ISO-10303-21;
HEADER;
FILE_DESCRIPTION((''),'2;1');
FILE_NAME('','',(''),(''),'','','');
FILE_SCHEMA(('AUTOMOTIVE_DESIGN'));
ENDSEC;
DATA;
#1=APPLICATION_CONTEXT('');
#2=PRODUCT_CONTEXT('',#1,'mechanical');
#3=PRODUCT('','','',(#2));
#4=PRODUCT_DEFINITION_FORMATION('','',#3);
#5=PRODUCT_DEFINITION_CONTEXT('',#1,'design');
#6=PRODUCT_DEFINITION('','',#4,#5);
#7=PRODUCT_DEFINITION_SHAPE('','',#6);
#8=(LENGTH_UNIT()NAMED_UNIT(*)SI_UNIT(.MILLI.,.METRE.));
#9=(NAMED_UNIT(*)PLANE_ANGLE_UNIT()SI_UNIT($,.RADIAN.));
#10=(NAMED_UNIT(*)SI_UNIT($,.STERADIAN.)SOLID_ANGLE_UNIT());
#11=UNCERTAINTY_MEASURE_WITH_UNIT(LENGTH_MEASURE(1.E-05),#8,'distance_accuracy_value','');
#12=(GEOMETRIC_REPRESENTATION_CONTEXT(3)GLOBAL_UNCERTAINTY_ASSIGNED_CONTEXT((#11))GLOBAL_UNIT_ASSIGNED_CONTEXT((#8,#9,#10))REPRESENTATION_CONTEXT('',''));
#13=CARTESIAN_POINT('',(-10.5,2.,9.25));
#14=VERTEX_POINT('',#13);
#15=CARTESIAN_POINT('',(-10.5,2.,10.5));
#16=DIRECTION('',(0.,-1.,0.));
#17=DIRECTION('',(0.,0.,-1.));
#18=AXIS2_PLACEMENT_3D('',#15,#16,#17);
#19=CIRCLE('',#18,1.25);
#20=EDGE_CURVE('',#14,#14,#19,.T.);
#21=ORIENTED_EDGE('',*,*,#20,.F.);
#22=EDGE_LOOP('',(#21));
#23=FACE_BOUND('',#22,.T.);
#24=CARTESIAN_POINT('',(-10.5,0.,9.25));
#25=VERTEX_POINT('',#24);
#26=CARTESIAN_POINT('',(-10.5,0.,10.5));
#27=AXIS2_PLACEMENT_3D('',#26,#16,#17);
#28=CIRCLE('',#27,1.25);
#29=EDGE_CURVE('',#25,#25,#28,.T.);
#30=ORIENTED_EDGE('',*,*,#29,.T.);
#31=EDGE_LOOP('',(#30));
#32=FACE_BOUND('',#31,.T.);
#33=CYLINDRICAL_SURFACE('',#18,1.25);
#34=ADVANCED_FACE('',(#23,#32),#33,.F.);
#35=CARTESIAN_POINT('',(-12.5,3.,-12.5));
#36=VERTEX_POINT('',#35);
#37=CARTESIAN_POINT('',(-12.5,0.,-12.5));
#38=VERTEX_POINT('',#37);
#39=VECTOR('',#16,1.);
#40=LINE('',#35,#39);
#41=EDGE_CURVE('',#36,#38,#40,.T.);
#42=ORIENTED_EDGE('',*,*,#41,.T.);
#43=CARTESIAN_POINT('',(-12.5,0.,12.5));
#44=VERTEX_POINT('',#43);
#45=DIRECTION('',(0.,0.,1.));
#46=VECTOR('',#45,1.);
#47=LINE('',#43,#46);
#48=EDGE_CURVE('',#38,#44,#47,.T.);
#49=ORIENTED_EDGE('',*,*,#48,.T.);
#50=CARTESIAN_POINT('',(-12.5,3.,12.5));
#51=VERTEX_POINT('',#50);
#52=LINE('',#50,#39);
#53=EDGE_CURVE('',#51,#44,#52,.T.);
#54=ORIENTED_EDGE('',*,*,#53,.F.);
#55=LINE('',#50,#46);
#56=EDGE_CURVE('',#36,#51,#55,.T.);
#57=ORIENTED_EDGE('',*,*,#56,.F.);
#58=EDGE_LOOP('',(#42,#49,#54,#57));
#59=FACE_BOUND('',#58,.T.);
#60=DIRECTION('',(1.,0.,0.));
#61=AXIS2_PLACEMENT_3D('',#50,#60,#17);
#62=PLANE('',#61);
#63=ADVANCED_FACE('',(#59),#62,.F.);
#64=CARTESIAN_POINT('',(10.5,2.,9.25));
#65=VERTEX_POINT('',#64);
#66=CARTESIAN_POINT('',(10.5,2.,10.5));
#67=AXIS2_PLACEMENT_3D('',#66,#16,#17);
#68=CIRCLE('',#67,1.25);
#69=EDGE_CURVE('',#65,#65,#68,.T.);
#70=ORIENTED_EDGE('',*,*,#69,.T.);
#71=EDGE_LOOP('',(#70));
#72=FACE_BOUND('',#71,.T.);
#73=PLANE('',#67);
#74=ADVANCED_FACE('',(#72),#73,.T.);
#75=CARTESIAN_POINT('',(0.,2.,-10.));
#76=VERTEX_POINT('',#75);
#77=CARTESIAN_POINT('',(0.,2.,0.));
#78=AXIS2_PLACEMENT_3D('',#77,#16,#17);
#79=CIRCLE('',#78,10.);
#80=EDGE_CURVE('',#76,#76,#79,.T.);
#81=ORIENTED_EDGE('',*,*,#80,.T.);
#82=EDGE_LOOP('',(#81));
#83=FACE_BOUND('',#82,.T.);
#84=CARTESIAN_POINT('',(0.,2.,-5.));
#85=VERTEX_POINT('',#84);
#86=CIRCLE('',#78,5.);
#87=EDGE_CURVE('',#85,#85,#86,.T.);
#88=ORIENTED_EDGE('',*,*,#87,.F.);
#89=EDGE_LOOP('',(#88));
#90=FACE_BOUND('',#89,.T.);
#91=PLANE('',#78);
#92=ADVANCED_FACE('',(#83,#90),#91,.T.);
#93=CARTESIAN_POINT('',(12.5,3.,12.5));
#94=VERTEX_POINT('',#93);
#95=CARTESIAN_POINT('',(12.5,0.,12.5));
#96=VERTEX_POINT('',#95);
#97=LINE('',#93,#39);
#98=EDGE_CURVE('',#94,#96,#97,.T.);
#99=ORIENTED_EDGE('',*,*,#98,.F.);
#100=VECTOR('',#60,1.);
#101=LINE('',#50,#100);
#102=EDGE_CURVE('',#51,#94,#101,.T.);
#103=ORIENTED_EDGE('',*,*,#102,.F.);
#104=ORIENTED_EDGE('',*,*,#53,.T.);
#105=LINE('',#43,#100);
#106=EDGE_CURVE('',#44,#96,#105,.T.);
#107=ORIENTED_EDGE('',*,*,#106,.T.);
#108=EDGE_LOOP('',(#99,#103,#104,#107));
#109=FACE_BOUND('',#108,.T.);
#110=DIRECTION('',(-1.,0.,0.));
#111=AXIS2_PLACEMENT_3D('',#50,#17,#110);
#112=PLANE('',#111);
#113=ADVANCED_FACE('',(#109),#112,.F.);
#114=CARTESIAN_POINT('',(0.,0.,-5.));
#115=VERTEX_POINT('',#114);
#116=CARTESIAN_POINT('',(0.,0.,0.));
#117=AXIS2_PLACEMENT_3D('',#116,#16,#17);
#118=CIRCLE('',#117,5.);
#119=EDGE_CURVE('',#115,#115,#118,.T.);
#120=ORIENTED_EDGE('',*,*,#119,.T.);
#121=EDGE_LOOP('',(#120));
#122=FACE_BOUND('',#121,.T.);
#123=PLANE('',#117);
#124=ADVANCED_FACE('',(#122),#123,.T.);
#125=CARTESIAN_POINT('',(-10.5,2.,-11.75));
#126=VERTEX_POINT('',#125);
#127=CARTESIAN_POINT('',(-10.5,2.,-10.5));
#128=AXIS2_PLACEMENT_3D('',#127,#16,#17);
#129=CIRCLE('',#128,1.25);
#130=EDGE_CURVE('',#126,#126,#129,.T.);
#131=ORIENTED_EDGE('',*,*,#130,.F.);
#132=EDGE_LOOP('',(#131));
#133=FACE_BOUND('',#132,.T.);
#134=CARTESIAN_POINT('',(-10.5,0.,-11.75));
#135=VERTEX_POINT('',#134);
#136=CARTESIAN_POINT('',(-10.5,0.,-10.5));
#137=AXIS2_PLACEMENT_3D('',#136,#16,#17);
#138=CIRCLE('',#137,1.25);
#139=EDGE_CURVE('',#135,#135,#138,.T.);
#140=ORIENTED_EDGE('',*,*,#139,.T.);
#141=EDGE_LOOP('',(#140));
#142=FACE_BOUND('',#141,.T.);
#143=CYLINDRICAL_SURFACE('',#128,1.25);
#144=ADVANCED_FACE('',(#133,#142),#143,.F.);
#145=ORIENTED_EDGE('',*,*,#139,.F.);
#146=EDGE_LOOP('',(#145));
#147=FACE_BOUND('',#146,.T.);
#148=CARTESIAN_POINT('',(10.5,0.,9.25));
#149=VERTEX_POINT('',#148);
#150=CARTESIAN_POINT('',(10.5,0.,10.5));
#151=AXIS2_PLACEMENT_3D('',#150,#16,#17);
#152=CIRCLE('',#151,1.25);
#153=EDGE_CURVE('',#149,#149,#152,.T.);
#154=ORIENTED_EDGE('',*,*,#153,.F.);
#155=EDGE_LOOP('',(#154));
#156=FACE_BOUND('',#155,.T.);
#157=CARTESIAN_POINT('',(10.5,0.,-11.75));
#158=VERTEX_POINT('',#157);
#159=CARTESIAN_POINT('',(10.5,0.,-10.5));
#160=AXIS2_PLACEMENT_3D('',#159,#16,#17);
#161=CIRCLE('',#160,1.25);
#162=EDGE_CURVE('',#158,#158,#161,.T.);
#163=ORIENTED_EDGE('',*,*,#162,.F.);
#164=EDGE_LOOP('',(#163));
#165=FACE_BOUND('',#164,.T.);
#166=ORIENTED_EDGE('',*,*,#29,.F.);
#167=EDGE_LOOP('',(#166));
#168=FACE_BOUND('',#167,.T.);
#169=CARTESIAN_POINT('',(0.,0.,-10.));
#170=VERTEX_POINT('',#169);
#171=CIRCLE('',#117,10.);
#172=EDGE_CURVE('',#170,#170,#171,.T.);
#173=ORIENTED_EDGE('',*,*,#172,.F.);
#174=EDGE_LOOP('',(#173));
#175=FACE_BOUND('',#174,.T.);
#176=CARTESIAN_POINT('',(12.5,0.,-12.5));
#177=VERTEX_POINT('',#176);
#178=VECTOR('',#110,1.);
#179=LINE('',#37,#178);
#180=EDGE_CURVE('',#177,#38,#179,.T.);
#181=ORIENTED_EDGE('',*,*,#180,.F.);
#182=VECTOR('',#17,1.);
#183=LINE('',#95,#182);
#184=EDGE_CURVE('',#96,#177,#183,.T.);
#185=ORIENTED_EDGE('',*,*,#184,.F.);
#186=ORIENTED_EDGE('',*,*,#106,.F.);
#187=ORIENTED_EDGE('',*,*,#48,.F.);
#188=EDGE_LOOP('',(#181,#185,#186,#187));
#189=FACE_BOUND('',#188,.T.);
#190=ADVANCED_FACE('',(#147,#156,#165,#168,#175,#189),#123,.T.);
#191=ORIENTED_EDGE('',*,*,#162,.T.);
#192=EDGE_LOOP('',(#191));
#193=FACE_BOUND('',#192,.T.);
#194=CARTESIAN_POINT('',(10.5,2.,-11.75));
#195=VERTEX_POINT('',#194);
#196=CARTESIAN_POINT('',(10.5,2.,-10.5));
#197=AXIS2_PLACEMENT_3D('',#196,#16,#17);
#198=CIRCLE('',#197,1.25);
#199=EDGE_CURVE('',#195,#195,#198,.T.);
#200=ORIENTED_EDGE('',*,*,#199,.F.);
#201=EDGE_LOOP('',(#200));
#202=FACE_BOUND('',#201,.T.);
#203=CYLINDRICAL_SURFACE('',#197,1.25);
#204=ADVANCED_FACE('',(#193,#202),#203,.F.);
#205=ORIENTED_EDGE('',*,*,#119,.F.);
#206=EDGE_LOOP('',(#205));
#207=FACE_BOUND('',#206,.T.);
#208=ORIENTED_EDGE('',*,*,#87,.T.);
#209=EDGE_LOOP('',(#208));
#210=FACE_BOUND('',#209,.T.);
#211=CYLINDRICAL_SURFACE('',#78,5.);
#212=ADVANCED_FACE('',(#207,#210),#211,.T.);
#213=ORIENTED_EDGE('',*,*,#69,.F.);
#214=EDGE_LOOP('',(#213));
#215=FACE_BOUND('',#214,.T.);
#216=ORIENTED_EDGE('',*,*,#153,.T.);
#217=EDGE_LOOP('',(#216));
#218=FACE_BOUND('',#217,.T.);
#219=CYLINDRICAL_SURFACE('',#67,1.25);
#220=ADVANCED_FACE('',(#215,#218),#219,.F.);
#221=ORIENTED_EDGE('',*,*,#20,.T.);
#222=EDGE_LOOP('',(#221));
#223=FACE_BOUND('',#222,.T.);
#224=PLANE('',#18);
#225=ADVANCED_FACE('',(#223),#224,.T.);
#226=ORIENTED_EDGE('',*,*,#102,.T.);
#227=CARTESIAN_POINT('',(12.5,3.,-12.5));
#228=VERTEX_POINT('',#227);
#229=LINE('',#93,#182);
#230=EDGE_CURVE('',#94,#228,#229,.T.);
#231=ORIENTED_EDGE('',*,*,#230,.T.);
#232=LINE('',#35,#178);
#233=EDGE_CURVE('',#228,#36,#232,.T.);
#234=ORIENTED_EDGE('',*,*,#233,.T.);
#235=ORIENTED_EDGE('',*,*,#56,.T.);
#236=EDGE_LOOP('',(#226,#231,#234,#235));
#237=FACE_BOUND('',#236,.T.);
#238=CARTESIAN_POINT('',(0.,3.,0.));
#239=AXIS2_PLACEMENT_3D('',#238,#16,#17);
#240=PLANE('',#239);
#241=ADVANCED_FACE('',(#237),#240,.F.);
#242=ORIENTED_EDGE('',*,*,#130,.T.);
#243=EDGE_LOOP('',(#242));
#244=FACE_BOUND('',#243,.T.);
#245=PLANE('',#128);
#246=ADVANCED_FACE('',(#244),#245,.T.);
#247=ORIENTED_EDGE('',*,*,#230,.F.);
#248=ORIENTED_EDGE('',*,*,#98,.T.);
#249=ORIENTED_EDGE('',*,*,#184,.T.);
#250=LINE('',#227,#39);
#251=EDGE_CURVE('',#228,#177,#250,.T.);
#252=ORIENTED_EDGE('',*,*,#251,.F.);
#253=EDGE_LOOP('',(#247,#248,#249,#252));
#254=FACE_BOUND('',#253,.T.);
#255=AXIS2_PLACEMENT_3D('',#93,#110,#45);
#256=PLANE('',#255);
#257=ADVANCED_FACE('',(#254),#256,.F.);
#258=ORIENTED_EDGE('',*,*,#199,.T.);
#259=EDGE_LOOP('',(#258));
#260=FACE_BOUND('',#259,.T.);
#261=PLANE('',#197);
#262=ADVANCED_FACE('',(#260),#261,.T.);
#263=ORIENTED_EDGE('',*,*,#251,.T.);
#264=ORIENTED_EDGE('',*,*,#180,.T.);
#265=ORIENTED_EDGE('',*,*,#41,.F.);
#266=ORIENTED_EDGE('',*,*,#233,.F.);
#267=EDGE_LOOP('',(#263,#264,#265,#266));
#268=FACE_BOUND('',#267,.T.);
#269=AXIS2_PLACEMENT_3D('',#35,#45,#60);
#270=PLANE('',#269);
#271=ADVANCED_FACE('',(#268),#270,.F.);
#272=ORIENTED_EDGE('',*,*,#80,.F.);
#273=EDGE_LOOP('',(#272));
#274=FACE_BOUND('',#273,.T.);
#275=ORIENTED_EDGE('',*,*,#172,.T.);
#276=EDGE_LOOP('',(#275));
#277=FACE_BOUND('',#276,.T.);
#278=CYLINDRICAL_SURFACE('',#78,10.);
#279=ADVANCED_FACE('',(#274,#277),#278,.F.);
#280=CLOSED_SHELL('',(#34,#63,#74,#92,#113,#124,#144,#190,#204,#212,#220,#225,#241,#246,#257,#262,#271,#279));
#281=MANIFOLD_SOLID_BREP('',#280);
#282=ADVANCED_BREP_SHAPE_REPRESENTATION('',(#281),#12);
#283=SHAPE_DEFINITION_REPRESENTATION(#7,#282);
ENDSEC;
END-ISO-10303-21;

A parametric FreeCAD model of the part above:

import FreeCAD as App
import Part
import Sketcher

V = App.Vector
Q = App.Units.Quantity

doc = App.newDocument("Part")
params = doc.addObject("Spreadsheet::Sheet", "Params")
for row, (alias, value) in enumerate([
    ("sketch1_width", "25 mm"),
    ("pad1_length", "3 mm"),
    ("sketch2_diameter", "20 mm"),
    ("sketch2_diameter2", "10 mm"),
    ("pocket1_length", "2 mm"),
    ("sketch3_diameter", "2.5 mm"),
    ("pocket2_length", "2 mm"),
], start=1):
    params.set(f"A{row}", alias)
    params.set(f"B{row}", "=" + value)
    params.setAlias(f"B{row}", alias)

body = doc.addObject("PartDesign::Body", "Body")

# Sketch on XZ plane
sketch1 = body.newObject("Sketcher::SketchObject", "Sketch")
sketch1.AttachmentSupport = (doc.getObject("XZ_Plane"), [""])
sketch1.MapMode = "FlatFace"
sketch1.addGeometry(Part.LineSegment(V(-12.5, -12.5, 0), V(-12.5, 12.5, 0)), False)
sketch1.addGeometry(Part.LineSegment(V(-12.5, 12.5, 0), V(12.5, 12.5, 0)), False)
sketch1.addGeometry(Part.LineSegment(V(12.5, 12.5, 0), V(12.5, -12.5, 0)), False)
sketch1.addGeometry(Part.LineSegment(V(12.5, -12.5, 0), V(-12.5, -12.5, 0)), False)
sketch1.addConstraint(Sketcher.Constraint("Coincident", 0, 2, 1, 1))
sketch1.addConstraint(Sketcher.Constraint("Coincident", 1, 2, 2, 1))
sketch1.addConstraint(Sketcher.Constraint("Coincident", 2, 2, 3, 1))
sketch1.addConstraint(Sketcher.Constraint("Coincident", 3, 2, 0, 1))
sketch1.addConstraint(Sketcher.Constraint("Vertical", 0))
sketch1.addConstraint(Sketcher.Constraint("Horizontal", 1))
sketch1.addConstraint(Sketcher.Constraint("Vertical", 2))
sketch1.addConstraint(Sketcher.Constraint("Horizontal", 3))
sketch1.addConstraint(Sketcher.Constraint("Symmetric", 0, 2, 2, 2, -1, 1))
sketch1.addConstraint(Sketcher.Constraint("Equal", 3, 0))
sketch1.addConstraint(Sketcher.Constraint("DistanceX", 1, 1, 1, 2, Q("25 mm")))
sketch1.setExpression("Constraints[10]", "Params.sketch1_width")
pad1 = body.newObject("PartDesign::Pad", "Pad")
pad1.Profile = sketch1
pad1.setExpression("Length", "Params.pad1_length")
pad1.Reversed = True

# Sketch on XZ plane
sketch2 = body.newObject("Sketcher::SketchObject", "Sketch001")
sketch2.AttachmentSupport = (doc.getObject("XZ_Plane"), [""])
sketch2.MapMode = "FlatFace"
sketch2.addGeometry(Part.Circle(V(0, 0, 0), V(0, 0, 1), 10), False)
sketch2.addGeometry(Part.Circle(V(0, 0, 0), V(0, 0, 1), 5), False)
sketch2.addConstraint(Sketcher.Constraint("Coincident", 0, 3, -1, 1))
sketch2.addConstraint(Sketcher.Constraint("Coincident", 1, 3, -1, 1))
sketch2.addConstraint(Sketcher.Constraint("Diameter", 0, Q("20 mm")))
sketch2.addConstraint(Sketcher.Constraint("Diameter", 1, Q("10 mm")))
sketch2.setExpression("Constraints[2]", "Params.sketch2_diameter")
sketch2.setExpression("Constraints[3]", "Params.sketch2_diameter2")
pocket1 = body.newObject("PartDesign::Pocket", "Pocket")
pocket1.Profile = sketch2
pocket1.setExpression("Length", "Params.pocket1_length")

# Sketch on XZ plane
sketch3 = body.newObject("Sketcher::SketchObject", "Sketch002")
sketch3.AttachmentSupport = (doc.getObject("XZ_Plane"), [""])
sketch3.MapMode = "FlatFace"
sketch3.addGeometry(Part.Circle(V(-10.5, 10.5, 0), V(0, 0, 1), 1.25), False)
sketch3.addGeometry(Part.Circle(V(10.5, 10.5, 0), V(0, 0, 1), 1.25), False)
sketch3.addGeometry(Part.Circle(V(10.5, -10.5, 0), V(0, 0, 1), 1.25), False)
sketch3.addGeometry(Part.Circle(V(-10.5, -10.5, 0), V(0, 0, 1), 1.25), False)
sketch3.addConstraint(Sketcher.Constraint("Equal", 0, 1))
sketch3.addConstraint(Sketcher.Constraint("Equal", 1, 2))
sketch3.addConstraint(Sketcher.Constraint("Equal", 2, 3))
sketch3.addConstraint(Sketcher.Constraint("Symmetric", 0, 3, 2, 3, -1, 1))
sketch3.addConstraint(Sketcher.Constraint("Symmetric", 1, 3, 3, 3, -1, 1))
sketch3.addConstraint(Sketcher.Constraint("Symmetric", 0, 3, 1, 3, -2))
sketch3.addConstraint(Sketcher.Constraint("Diameter", 0, Q("2.5 mm")))
sketch3.addConstraint(Sketcher.Constraint("DistanceX", 0, 3, 1, 3, Q("21 mm")))
sketch3.addConstraint(Sketcher.Constraint("DistanceY", 2, 3, 1, 3, Q("21 mm")))
sketch3.setExpression("Constraints[6]", "Params.sketch3_diameter")
pocket2 = body.newObject("PartDesign::Pocket", "Pocket001")
pocket2.Profile = sketch3
pocket2.setExpression("Length", "Params.pocket2_length")

doc.recompute()
